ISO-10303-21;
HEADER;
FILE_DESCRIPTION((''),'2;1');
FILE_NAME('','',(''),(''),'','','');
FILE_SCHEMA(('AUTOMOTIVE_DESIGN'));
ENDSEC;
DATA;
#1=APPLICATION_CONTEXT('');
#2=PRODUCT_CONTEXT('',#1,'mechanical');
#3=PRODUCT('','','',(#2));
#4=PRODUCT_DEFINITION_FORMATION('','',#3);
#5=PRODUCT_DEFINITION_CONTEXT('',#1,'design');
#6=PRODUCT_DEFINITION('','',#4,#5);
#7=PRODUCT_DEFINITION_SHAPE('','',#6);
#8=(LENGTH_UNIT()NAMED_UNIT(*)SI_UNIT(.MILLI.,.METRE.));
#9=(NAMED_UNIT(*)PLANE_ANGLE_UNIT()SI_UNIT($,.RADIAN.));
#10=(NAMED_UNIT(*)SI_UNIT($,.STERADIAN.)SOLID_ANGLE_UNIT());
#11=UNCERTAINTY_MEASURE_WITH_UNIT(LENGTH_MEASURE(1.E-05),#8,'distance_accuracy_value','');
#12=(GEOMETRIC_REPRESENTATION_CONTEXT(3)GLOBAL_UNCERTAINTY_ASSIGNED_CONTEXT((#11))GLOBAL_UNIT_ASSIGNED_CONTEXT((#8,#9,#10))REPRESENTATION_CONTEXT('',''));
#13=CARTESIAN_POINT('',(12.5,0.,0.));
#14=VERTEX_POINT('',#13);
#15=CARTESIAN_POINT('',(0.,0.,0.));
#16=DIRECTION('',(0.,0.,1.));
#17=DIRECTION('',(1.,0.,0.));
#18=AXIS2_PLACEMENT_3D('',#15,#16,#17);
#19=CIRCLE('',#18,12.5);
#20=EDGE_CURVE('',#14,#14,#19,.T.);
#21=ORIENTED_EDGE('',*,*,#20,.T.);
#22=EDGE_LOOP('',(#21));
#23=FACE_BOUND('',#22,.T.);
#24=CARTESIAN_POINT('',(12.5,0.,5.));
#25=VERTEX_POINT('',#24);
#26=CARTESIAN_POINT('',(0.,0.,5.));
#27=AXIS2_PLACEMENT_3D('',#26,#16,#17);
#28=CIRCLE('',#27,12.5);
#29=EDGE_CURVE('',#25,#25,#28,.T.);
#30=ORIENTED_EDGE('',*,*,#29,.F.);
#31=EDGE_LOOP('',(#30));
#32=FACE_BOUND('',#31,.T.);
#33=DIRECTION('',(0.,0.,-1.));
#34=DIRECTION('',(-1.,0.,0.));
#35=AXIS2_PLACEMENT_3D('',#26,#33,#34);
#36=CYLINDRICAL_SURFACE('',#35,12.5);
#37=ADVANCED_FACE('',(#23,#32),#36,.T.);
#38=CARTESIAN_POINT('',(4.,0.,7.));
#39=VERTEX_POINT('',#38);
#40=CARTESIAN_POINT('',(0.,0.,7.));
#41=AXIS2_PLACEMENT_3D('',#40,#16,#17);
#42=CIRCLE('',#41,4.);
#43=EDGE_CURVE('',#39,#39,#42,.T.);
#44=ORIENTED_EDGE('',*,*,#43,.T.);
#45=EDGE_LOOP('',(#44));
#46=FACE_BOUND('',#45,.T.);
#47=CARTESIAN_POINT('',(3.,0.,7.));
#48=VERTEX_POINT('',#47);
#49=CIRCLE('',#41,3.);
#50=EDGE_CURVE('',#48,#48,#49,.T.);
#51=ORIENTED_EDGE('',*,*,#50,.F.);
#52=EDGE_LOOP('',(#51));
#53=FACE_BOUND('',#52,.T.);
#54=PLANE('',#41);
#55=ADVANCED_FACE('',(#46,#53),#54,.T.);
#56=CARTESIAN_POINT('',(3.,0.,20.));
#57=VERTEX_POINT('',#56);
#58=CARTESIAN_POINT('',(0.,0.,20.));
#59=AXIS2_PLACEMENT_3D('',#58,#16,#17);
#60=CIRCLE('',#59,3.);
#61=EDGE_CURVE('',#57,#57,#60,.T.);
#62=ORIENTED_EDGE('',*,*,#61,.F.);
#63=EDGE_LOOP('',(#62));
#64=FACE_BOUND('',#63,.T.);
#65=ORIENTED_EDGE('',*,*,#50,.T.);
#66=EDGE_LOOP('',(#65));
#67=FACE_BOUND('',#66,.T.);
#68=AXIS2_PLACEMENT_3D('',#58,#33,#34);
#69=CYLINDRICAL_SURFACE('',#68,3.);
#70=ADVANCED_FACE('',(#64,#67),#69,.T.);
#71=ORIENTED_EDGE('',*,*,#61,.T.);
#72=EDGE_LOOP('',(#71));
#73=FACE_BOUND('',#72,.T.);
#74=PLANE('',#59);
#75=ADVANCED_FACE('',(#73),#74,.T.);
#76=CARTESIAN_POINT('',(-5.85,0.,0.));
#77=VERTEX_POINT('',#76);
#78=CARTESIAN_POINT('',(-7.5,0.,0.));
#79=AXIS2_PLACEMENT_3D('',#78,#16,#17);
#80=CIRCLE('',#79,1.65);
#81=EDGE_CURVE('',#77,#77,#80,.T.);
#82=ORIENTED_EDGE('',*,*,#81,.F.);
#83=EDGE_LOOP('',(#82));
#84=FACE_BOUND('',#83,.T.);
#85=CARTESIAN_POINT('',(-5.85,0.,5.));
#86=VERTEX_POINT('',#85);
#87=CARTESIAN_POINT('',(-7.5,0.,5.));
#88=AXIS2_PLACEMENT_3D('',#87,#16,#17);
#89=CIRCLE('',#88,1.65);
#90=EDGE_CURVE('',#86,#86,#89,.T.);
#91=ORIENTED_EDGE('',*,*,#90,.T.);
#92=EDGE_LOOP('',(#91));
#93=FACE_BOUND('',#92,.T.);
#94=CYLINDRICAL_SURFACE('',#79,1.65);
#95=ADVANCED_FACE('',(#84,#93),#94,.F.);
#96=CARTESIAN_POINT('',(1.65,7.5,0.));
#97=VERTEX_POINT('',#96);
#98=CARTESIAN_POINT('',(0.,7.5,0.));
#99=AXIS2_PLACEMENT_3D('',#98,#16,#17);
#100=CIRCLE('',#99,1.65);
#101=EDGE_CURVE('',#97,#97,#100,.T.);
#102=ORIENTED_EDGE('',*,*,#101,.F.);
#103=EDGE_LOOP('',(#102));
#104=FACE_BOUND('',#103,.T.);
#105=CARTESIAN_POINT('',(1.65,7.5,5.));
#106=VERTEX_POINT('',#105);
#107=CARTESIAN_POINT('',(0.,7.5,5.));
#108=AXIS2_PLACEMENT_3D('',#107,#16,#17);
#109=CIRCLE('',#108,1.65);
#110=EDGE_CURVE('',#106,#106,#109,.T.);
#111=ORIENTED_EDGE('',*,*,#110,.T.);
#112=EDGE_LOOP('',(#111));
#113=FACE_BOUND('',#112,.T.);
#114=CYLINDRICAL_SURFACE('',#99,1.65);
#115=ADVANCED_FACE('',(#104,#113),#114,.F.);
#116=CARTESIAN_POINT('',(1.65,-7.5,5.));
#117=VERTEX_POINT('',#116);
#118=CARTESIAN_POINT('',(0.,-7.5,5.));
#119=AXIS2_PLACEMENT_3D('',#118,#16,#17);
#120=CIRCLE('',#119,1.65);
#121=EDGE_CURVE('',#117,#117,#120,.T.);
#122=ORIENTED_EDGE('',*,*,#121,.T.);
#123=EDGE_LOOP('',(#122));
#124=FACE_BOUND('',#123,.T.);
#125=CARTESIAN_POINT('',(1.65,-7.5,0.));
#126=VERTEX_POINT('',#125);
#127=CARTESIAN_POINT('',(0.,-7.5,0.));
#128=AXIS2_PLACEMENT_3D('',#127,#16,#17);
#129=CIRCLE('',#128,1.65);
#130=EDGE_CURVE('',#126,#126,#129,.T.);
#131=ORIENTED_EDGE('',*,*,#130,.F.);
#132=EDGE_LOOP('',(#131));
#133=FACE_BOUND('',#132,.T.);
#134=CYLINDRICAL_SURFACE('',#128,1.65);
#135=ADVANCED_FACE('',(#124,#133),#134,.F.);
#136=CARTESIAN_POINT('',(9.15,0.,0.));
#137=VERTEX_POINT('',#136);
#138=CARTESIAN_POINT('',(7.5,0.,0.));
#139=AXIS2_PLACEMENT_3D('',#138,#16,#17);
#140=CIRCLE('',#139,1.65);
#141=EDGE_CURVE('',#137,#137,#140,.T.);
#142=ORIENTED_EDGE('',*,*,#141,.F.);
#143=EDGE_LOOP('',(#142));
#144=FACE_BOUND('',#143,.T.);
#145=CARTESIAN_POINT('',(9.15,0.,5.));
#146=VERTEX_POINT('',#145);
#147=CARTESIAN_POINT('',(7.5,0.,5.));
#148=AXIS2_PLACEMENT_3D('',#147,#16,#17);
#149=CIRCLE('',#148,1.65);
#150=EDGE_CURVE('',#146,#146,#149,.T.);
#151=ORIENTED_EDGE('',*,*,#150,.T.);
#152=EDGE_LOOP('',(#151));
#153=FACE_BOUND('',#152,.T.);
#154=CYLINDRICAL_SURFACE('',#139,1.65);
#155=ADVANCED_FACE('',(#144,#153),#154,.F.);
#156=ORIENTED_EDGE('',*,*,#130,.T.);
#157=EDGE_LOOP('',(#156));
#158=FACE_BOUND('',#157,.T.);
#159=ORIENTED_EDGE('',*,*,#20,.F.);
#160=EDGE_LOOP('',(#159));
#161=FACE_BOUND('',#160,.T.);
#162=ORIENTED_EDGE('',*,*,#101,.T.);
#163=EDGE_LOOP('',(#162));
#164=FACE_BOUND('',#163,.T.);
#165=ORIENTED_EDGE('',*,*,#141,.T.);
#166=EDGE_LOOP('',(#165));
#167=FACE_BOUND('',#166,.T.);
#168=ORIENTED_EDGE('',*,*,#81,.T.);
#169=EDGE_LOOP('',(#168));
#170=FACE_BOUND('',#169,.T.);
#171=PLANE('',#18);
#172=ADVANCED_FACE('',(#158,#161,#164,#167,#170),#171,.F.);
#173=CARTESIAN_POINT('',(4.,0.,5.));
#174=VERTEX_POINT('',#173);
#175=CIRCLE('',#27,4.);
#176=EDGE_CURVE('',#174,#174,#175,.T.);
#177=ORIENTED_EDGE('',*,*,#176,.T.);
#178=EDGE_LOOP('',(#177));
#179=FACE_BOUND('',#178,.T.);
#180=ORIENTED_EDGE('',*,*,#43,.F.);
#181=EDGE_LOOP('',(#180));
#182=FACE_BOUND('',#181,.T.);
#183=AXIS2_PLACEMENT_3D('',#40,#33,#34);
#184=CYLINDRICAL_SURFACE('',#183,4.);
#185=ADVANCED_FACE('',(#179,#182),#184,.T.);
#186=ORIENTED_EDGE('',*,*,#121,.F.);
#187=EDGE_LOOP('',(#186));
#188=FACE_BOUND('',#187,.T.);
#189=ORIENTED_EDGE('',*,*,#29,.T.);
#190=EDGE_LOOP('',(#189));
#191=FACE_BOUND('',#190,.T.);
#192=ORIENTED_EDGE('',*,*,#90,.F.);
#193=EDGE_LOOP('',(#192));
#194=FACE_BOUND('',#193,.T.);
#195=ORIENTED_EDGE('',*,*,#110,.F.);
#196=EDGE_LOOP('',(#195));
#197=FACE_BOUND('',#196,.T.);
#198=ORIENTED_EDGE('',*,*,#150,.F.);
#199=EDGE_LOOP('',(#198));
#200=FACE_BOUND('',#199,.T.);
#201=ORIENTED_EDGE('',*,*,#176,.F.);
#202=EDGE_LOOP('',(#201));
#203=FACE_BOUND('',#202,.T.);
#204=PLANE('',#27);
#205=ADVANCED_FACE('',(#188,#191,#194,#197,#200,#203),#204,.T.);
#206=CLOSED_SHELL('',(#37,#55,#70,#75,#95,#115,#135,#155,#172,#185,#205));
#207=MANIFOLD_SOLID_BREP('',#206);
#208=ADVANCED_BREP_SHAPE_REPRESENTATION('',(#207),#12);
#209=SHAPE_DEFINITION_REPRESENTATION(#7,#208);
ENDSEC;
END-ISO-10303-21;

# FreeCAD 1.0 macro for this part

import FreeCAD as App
import Part
import Sketcher

V = App.Vector

doc = App.newDocument("Part")
body = doc.addObject("PartDesign::Body", "Body")

sketch1 = body.newObject("Sketcher::SketchObject", "Sketch")
sketch1.AttachmentSupport = (doc.getObject("XY_Plane"), [""])
sketch1.MapMode = "FlatFace"
sketch1.addGeometry(Part.Circle(V(0, 0, 0), V(0, 0, 1), 12), False)
sketch1.addConstraint(Sketcher.Constraint("Coincident", 0, 3, -1, 1))
sketch1.addConstraint(Sketcher.Constraint("Diameter", 0, 25.0))
pad1 = body.newObject("PartDesign::Pad", "Pad")
pad1.Profile = sketch1
pad1.Length = 5

sketch2 = body.newObject("Sketcher::SketchObject", "Sketch001")
sketch2.AttachmentSupport = (doc.getObject("XY_Plane"), [""])
sketch2.MapMode = "FlatFace"
sketch2.AttachmentOffset = App.Placement(V(0, 0, 5), App.Rotation())
sketch2.addGeometry(Part.Circle(V(0, 0, 0), V(0, 0, 1), 4), False)
sketch2.addConstraint(Sketcher.Constraint("Coincident", 0, 3, -1, 1))
sketch2.addConstraint(Sketcher.Constraint("Diameter", 0, 8.0))
pad2 = body.newObject("PartDesign::Pad", "Pad001")
pad2.Profile = sketch2
pad2.Length = 2

sketch3 = body.newObject("Sketcher::SketchObject", "Sketch002")
sketch3.AttachmentSupport = (doc.getObject("XY_Plane"), [""])
sketch3.MapMode = "FlatFace"
sketch3.AttachmentOffset = App.Placement(V(0, 0, 7), App.Rotation())
sketch3.addGeometry(Part.Circle(V(0, 0, 0), V(0, 0, 1), 3), False)
sketch3.addConstraint(Sketcher.Constraint("Coincident", 0, 3, -1, 1))
sketch3.addConstraint(Sketcher.Constraint("Diameter", 0, 6.0))
pad3 = body.newObject("PartDesign::Pad", "Pad002")
pad3.Profile = sketch3
pad3.Length = 13

sketch4 = body.newObject("Sketcher::SketchObject", "Sketch003")
sketch4.AttachmentSupport = (doc.getObject("XY_Plane"), [""])
sketch4.MapMode = "FlatFace"
sketch4.AttachmentOffset = App.Placement(V(0, 0, 5), App.Rotation())
sketch4.addGeometry(Part.Circle(V(0, 7.5, 0), V(0, 0, 1), 1.6), False)
sketch4.addGeometry(Part.Circle(V(7.5, 0, 0), V(0, 0, 1), 1.6), False)
sketch4.addGeometry(Part.Circle(V(0, -7.5, 0), V(0, 0, 1), 1.6), False)
sketch4.addGeometry(Part.Circle(V(-7.5, 0, 0), V(0, 0, 1), 1.6), False)
sketch4.addConstraint(Sketcher.Constraint("Equal", 0, 1))
sketch4.addConstraint(Sketcher.Constraint("Equal", 1, 2))
sketch4.addConstraint(Sketcher.Constraint("Equal", 2, 3))
sketch4.addConstraint(Sketcher.Constraint("Symmetric", 0, 3, 2, 3, -1, 1))
sketch4.addConstraint(Sketcher.Constraint("Symmetric", 1, 3, 3, 3, -1, 1))
sketch4.addConstraint(Sketcher.Constraint("PointOnObject", 0, 3, -2))
sketch4.addConstraint(Sketcher.Constraint("PointOnObject", 1, 3, -1))
sketch4.addConstraint(Sketcher.Constraint("Diameter", 0, 3.3))
sketch4.addConstraint(Sketcher.Constraint("DistanceY", 2, 3, 0, 3, 15.0))
sketch4.addConstraint(Sketcher.Constraint("DistanceX", 3, 3, 1, 3, 15.0))
pocket1 = body.newObject("PartDesign::Pocket", "Pocket")
pocket1.Profile = sketch4
pocket1.Type = "ThroughAll"

doc.recompute()
